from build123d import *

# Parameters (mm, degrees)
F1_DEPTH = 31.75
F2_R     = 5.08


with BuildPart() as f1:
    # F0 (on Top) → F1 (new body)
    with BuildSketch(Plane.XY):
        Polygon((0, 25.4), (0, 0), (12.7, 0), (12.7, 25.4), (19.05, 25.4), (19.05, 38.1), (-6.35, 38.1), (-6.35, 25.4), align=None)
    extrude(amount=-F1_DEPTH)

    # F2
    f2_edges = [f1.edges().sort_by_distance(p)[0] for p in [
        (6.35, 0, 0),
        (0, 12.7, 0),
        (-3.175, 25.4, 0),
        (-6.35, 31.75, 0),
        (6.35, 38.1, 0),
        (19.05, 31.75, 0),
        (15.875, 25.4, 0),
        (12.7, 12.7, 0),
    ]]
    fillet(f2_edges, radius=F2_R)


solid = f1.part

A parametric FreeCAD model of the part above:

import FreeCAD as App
import Part
import Sketcher
from FreeCAD import Vector
Q = App.Units.Quantity


def edges_at(feature, points):
    """Names of the edges that pass closest to the given points."""
    edges = feature.Shape.Edges
    near = lambda p: min(range(len(edges)), key=lambda i: edges[i].distToShape(Part.Vertex(*p))[0])
    return sorted({f"Edge{near(p) + 1}" for p in points})


def add_polygon(sketch, points):
    """Adds a closed chain of lines whose ends are joined by coincident constraints."""
    first, n = sketch.GeometryCount, len(points)
    for a, b in zip(points, points[1:] + points[:1]):
        sketch.addGeometry(Part.LineSegment(App.Vector(*a, 0), App.Vector(*b, 0)), False)
    for i in range(n):
        sketch.addConstraint(Sketcher.Constraint("Coincident", first + i, 2, first + (i + 1) % n, 1))

doc = App.newDocument("Part")
body = doc.addObject("PartDesign::Body", "Body")

sketch1 = doc.addObject("Sketcher::SketchObject", "Sketch")
body.addObject(sketch1)
sketch1.AttachmentSupport = (doc.XY_Plane, [""])
sketch1.MapMode = "FlatFace"
add_polygon(sketch1, [(0, 25), (0, 0), (13, 0), (13, 25), (19, 25), (19, 38), (-6, 38), (-6, 25)])
sketch1.addConstraint(Sketcher.Constraint("Vertical", 0))
sketch1.addConstraint(Sketcher.Constraint("Horizontal", 1))
sketch1.addConstraint(Sketcher.Constraint("Vertical", 2))
sketch1.addConstraint(Sketcher.Constraint("Horizontal", 3))
sketch1.addConstraint(Sketcher.Constraint("Vertical", 4))
sketch1.addConstraint(Sketcher.Constraint("Horizontal", 5))
sketch1.addConstraint(Sketcher.Constraint("Vertical", 6))
sketch1.addConstraint(Sketcher.Constraint("Horizontal", 7))
sketch1.addConstraint(Sketcher.Constraint("Coincident", 0, 2, -1, 1))
sketch1.addConstraint(Sketcher.Constraint("Horizontal", 3, 2, 6, 2))
sketch1.addConstraint(Sketcher.Constraint("Equal", 3, 7))
sketch1.addConstraint(Sketcher.Constraint("Equal", 5, 0))
sketch1.addConstraint(Sketcher.Constraint("Equal", 1, 4))
sketch1.addConstraint(Sketcher.Constraint("DistanceX", 5, 2, 5, 1, Q("1 in")))
sketch1.addConstraint(Sketcher.Constraint("DistanceX", 1, 1, 1, 2, Q("0.5 in")))
pad1 = doc.addObject("PartDesign::Pad", "Pad")
body.addObject(pad1)
pad1.Profile = sketch1
pad1.Length = Q("1.25 in")
pad1.Reversed = True
doc.recompute()

fillet = doc.addObject("PartDesign::Fillet", "Fillet")
body.addObject(fillet)
fillet.Base = (pad1, edges_at(pad1, [
    (6.35, 0, 0),
    (0, 12.7, 0),
    (-3.175, 25.4, 0),
    (-6.35, 31.75, 0),
    (6.35, 38.1, 0),
    (19.05, 31.75, 0),
    (15.875, 25.4, 0),
    (12.7, 12.7, 0),
]))
fillet.Radius = Q("0.2 in")

doc.recompute()
